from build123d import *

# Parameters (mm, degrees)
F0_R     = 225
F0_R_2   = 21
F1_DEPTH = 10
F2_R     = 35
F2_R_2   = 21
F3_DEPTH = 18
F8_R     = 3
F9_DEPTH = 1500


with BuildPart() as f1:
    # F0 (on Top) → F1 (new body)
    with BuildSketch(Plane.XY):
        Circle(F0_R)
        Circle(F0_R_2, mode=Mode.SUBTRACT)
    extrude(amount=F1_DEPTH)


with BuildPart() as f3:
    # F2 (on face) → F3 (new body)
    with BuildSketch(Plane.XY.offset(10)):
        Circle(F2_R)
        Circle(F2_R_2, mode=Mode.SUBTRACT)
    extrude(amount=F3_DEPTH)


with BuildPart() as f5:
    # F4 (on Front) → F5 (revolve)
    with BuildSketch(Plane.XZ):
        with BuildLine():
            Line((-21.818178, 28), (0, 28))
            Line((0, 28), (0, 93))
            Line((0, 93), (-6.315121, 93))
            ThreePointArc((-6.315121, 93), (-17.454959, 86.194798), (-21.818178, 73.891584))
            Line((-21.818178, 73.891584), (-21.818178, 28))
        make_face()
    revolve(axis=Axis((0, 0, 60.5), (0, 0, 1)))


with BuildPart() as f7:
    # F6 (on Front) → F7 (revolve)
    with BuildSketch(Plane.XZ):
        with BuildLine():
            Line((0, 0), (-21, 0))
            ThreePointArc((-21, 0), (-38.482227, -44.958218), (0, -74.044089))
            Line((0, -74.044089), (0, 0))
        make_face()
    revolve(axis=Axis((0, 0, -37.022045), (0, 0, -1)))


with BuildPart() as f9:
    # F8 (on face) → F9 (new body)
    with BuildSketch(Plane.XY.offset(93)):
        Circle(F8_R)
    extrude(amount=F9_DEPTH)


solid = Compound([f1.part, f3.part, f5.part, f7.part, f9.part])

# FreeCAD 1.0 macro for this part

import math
import FreeCAD as App
import Part
import Sketcher
from FreeCAD import Vector

doc = App.newDocument("Part")
body = doc.addObject("PartDesign::Body", "Body")

sketch1 = doc.addObject("Sketcher::SketchObject", "Sketch")
body.addObject(sketch1)
sketch1.AttachmentSupport = (doc.XY_Plane, [""])
sketch1.MapMode = "FlatFace"
sketch1.addGeometry(Part.Circle(Vector(0, 0, 0), Vector(0, 0, 1), 225), False)
sketch1.addGeometry(Part.Circle(Vector(0, 0, 0), Vector(0, 0, 1), 21), False)
sketch1.addConstraint(Sketcher.Constraint("Coincident", 0, 3, -1, 1))
sketch1.addConstraint(Sketcher.Constraint("Coincident", 1, 3, -1, 1))
sketch1.addConstraint(Sketcher.Constraint("Diameter", 0, 450.0))
sketch1.addConstraint(Sketcher.Constraint("Diameter", 1, 42.0))
pad1 = doc.addObject("PartDesign::Pad", "Pad")
body.addObject(pad1)
pad1.Profile = sketch1
pad1.Length = 10
body2 = doc.addObject("PartDesign::Body", "Body001")

sketch2 = doc.addObject("Sketcher::SketchObject", "Sketch001")
body2.addObject(sketch2)
sketch2.AttachmentSupport = (doc.getObject("XY_Plane001"), [""])
sketch2.MapMode = "FlatFace"
sketch2.AttachmentOffset = App.Placement(Vector(0, 0, 10), App.Rotation())
sketch2.addGeometry(Part.Circle(Vector(0, 0, 0), Vector(0, 0, 1), 35), False)
sketch2.addGeometry(Part.Circle(Vector(0, 0, 0), Vector(0, 0, 1), 21), False)
sketch2.addConstraint(Sketcher.Constraint("Coincident", 0, 3, -1, 1))
sketch2.addConstraint(Sketcher.Constraint("Coincident", 1, 3, -1, 1))
sketch2.addConstraint(Sketcher.Constraint("Diameter", 0, 70.0))
sketch2.addConstraint(Sketcher.Constraint("Diameter", 1, 42.0))
pad2 = doc.addObject("PartDesign::Pad", "Pad001")
body2.addObject(pad2)
pad2.Profile = sketch2
pad2.Length = 18
body3 = doc.addObject("PartDesign::Body", "Body002")

sketch3 = doc.addObject("Sketcher::SketchObject", "Sketch002")
body3.addObject(sketch3)
sketch3.AttachmentSupport = (doc.getObject("XZ_Plane002"), [""])
sketch3.MapMode = "FlatFace"
sketch3.addGeometry(Part.LineSegment(Vector(-22, 28, 0), Vector(0, 28, 0)), False)
sketch3.addGeometry(Part.LineSegment(Vector(0, 28, 0), Vector(0, 93, 0)), False)
sketch3.addGeometry(Part.LineSegment(Vector(0, 93, 0), Vector(-6, 93, 0)), False)
sketch3.addGeometry(Part.ArcOfCircle(Part.Circle(Vector(-2, 74, 0), Vector(0, 0, 1), 20), math.radians(102), math.radians(180)), False)
sketch3.addGeometry(Part.LineSegment(Vector(-22, 74, 0), Vector(-22, 28, 0)), False)
sketch3.addConstraint(Sketcher.Constraint("Coincident", 0, 2, 1, 1))
sketch3.addConstraint(Sketcher.Constraint("Coincident", 1, 2, 2, 1))
sketch3.addConstraint(Sketcher.Constraint("Coincident", 2, 2, 3, 1))
sketch3.addConstraint(Sketcher.Constraint("Tangent", 3, 2, 4, 1))
sketch3.addConstraint(Sketcher.Constraint("Coincident", 4, 2, 0, 1))
sketch3.addConstraint(Sketcher.Constraint("Horizontal", 0))
sketch3.addConstraint(Sketcher.Constraint("Vertical", 1))
sketch3.addConstraint(Sketcher.Constraint("Horizontal", 2))
sketch3.addConstraint(Sketcher.Constraint("Vertical", 4))
sketch3.addConstraint(Sketcher.Constraint("PointOnObject", 0, 2, -2))
sketch3.addConstraint(Sketcher.Constraint("DistanceY", 1, 1, 1, 2, 65.0))
sketch3.addConstraint(Sketcher.Constraint("DistanceY", -1, 1, 0, 2, 28.0))
sketch3.addConstraint(Sketcher.Constraint("Radius", 3, 19.527645))
sketch3.addConstraint(Sketcher.Constraint("DistanceX", 2, 2, 2, 1, 6.315121))
sketch3.addConstraint(Sketcher.Constraint("DistanceX", 0, 1, 0, 2, 21.818178))
revolution = doc.addObject("PartDesign::Revolution", "Revolution")
body3.addObject(revolution)
revolution.Profile = sketch3
revolution.ReferenceAxis = (sketch3, ["V_Axis"])
revolution.Angle = 360
body4 = doc.addObject("PartDesign::Body", "Body003")

sketch4 = doc.addObject("Sketcher::SketchObject", "Sketch003")
body4.addObject(sketch4)
sketch4.AttachmentSupport = (doc.getObject("XZ_Plane003"), [""])
sketch4.MapMode = "FlatFace"
sketch4.addGeometry(Part.LineSegment(Vector(0, 0, 0), Vector(-21, 0, 0)), False)
sketch4.addGeometry(Part.ArcOfCircle(Part.Circle(Vector(0, -34, 0), Vector(0, 0, 1), 40), math.radians(122), math.radians(270)), False)
sketch4.addGeometry(Part.LineSegment(Vector(0, -74, 0), Vector(0, 0, 0)), False)
sketch4.addConstraint(Sketcher.Constraint("Coincident", 0, 2, 1, 1))
sketch4.addConstraint(Sketcher.Constraint("Coincident", 1, 2, 2, 1))
sketch4.addConstraint(Sketcher.Constraint("Coincident", 2, 2, 0, 1))
sketch4.addConstraint(Sketcher.Constraint("Horizontal", 0))
sketch4.addConstraint(Sketcher.Constraint("Vertical", 2))
sketch4.addConstraint(Sketcher.Constraint("Coincident", 2, 2, -1, 1))
sketch4.addConstraint(Sketcher.Constraint("PointOnObject", 1, 3, -2))
sketch4.addConstraint(Sketcher.Constraint("Radius", 1, 40.0))
sketch4.addConstraint(Sketcher.Constraint("DistanceX", 0, 2, 0, 1, 21.0))
revolution2 = doc.addObject("PartDesign::Revolution", "Revolution001")
body4.addObject(revolution2)
revolution2.Profile = sketch4
revolution2.ReferenceAxis = (sketch4, ["V_Axis"])
revolution2.Angle = 360
body5 = doc.addObject("PartDesign::Body", "Body004")

sketch5 = doc.addObject("Sketcher::SketchObject", "Sketch004")
body5.addObject(sketch5)
sketch5.AttachmentSupport = (doc.getObject("XY_Plane004"), [""])
sketch5.MapMode = "FlatFace"
sketch5.AttachmentOffset = App.Placement(Vector(0, 0, 93), App.Rotation())
sketch5.addGeometry(Part.Circle(Vector(0, 0, 0), Vector(0, 0, 1), 3), False)
sketch5.addConstraint(Sketcher.Constraint("Coincident", 0, 3, -1, 1))
sketch5.addConstraint(Sketcher.Constraint("Diameter", 0, 6.0))
pad3 = doc.addObject("PartDesign::Pad", "Pad002")
body5.addObject(pad3)
pad3.Profile = sketch5
pad3.Length = 1500

doc.recompute()
